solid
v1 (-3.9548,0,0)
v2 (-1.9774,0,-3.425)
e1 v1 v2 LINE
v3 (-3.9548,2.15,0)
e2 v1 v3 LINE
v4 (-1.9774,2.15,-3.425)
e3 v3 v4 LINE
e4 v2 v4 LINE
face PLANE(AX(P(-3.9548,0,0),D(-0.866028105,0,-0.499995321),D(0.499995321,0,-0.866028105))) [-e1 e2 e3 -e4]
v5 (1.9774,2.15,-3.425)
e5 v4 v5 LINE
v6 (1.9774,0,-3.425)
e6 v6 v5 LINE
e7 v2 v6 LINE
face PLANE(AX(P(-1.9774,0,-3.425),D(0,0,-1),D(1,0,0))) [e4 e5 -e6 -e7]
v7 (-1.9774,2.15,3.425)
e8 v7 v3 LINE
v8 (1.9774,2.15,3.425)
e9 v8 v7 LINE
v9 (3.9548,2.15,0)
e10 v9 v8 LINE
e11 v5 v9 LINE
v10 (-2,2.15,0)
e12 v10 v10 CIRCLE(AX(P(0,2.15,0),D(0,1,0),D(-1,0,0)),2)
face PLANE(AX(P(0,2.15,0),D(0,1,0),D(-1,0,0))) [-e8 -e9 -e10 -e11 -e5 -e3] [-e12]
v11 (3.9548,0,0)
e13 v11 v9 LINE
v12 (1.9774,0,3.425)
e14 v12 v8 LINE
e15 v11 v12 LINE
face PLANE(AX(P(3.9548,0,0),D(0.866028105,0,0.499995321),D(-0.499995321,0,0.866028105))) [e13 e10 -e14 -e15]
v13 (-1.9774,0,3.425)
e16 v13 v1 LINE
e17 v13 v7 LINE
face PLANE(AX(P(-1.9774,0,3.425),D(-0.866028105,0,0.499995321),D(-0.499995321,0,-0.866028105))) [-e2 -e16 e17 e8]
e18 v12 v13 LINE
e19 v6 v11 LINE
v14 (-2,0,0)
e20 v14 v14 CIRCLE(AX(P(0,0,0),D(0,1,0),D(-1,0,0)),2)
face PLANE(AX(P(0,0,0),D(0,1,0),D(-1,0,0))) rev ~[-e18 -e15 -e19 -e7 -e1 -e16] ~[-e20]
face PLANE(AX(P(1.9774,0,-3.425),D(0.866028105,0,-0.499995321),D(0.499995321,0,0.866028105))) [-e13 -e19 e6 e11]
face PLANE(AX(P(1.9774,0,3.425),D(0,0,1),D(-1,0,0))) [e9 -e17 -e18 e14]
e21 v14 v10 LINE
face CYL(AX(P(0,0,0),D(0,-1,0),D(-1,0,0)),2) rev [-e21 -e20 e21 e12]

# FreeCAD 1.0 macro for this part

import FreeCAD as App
import Part
import Sketcher
Q = App.Units.Quantity

doc = App.newDocument("Part")
params = doc.addObject("Spreadsheet::Sheet", "Params")
for row, (alias, value) in enumerate([
    ("sketch1_diameter", "4 mm"),
    ("pad1_length", "2.15 mm"),
], start=1):
    params.set(f"A{row}", alias)
    params.set(f"B{row}", "=" + value)
    params.setAlias(f"B{row}", alias)

body = doc.addObject("PartDesign::Body", "Body")

# Sketch on XZ plane
sketch1 = body.newObject("Sketcher::SketchObject", "Sketch")
sketch1.AttachmentSupport = (doc.getObject("XZ_Plane"), [""])
sketch1.MapMode = "FlatFace"
sketch1.addGeometry(Part.LineSegment(App.Vector(2, -3.4, 0), App.Vector(-2, -3.4, 0)), False)
sketch1.addGeometry(Part.LineSegment(App.Vector(-2, -3.4, 0), App.Vector(-4, 0, 0)), False)
sketch1.addGeometry(Part.LineSegment(App.Vector(-4, 0, 0), App.Vector(-2, 3.4, 0)), False)
sketch1.addGeometry(Part.LineSegment(App.Vector(-2, 3.4, 0), App.Vector(2, 3.4, 0)), False)
sketch1.addGeometry(Part.LineSegment(App.Vector(2, 3.4, 0), App.Vector(4, 0, 0)), False)
sketch1.addGeometry(Part.LineSegment(App.Vector(4, 0, 0), App.Vector(2, -3.4, 0)), False)
sketch1.addGeometry(Part.Circle(App.Vector(0, 0, 0), App.Vector(0, 0, 1), 2), False)
sketch1.addConstraint(Sketcher.Constraint("Coincident", 0, 2, 1, 1))
sketch1.addConstraint(Sketcher.Constraint("Coincident", 1, 2, 2, 1))
sketch1.addConstraint(Sketcher.Constraint("Coincident", 2, 2, 3, 1))
sketch1.addConstraint(Sketcher.Constraint("Coincident", 3, 2, 4, 1))
sketch1.addConstraint(Sketcher.Constraint("Coincident", 4, 2, 5, 1))
sketch1.addConstraint(Sketcher.Constraint("Coincident", 5, 2, 0, 1))
sketch1.addConstraint(Sketcher.Constraint("Horizontal", 0))
sketch1.addConstraint(Sketcher.Constraint("Horizontal", 3))
sketch1.addConstraint(Sketcher.Constraint("Coincident", 6, 3, -1, 1))
sketch1.addConstraint(Sketcher.Constraint("Symmetric", 0, 2, 3, 2, -1, 1))
sketch1.addConstraint(Sketcher.Constraint("Symmetric", 1, 2, 4, 2, -1, 1))
sketch1.addConstraint(Sketcher.Constraint("PointOnObject", 1, 2, -1))
sketch1.addConstraint(Sketcher.Constraint("Parallel", 2, 5))
sketch1.addConstraint(Sketcher.Constraint("Vertical", 0, 2, 2, 2))
sketch1.addConstraint(Sketcher.Constraint("Diameter", 6, Q("4 mm")))
sketch1.addConstraint(Sketcher.Constraint("Angle", 1, Q("119.9997 deg")))
sketch1.addConstraint(Sketcher.Constraint("DistanceY", 0, 2, 2, 2, Q("6.85 mm")))
sketch1.addConstraint(Sketcher.Constraint("DistanceX", 0, 2, 0, 1, Q("3.9548 mm")))
sketch1.setExpression("Constraints[14]", "Params.sketch1_diameter")
pad1 = body.newObject("PartDesign::Pad", "Pad")
pad1.Profile = sketch1
pad1.setExpression("Length", "Params.pad1_length")
pad1.Reversed = True

doc.recompute()
